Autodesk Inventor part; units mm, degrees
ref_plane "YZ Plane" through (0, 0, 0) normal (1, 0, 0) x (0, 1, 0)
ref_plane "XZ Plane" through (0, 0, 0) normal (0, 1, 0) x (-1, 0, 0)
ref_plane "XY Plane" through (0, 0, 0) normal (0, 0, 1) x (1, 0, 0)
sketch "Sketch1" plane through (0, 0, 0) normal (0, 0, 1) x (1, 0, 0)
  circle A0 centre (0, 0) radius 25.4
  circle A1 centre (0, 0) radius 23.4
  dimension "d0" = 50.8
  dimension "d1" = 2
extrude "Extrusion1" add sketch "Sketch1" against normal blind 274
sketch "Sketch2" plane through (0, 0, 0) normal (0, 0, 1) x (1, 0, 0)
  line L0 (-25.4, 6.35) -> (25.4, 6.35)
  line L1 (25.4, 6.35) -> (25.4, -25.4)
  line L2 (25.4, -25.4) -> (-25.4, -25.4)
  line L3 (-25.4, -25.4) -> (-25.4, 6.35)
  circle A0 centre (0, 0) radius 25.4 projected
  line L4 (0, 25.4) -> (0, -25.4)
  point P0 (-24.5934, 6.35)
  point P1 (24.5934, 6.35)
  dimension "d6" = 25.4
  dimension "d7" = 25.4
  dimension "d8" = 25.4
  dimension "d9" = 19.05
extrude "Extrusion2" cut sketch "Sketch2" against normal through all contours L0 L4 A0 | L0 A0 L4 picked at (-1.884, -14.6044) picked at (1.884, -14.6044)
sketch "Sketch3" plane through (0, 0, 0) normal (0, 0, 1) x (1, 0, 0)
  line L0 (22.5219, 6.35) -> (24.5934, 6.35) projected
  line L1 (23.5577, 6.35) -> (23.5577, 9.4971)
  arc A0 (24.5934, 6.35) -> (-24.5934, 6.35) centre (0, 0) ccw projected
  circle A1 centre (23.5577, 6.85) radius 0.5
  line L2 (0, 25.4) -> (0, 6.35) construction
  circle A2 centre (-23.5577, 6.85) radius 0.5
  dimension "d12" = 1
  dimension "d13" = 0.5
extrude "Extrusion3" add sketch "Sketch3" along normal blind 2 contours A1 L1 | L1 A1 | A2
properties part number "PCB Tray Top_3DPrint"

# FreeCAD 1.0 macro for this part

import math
import FreeCAD as App
import Part
import Sketcher

V = App.Vector
Q = App.Units.Quantity

doc = App.newDocument("Part")
body = doc.addObject("PartDesign::Body", "Body")

# Sketch on XY plane
sketch1 = body.newObject("Sketcher::SketchObject", "Sketch")
sketch1.AttachmentSupport = (doc.getObject("XY_Plane"), [""])
sketch1.MapMode = "FlatFace"
sketch1.addGeometry(Part.Circle(V(0, 0, 0), V(0, 0, 1), 25), False)
sketch1.addGeometry(Part.Circle(V(0, 0, 0), V(0, 0, 1), 23), False)
sketch1.addConstraint(Sketcher.Constraint("Coincident", 0, 3, -1, 1))
sketch1.addConstraint(Sketcher.Constraint("Coincident", 1, 3, -1, 1))
sketch1.addConstraint(Sketcher.Constraint("Diameter", 0, Q("50.8 mm")))
sketch1.addConstraint(Sketcher.Constraint("Diameter", 1, Q("46.8 mm")))
pad1 = body.newObject("PartDesign::Pad", "Pad")
pad1.Profile = sketch1
pad1.Length = 274
pad1.Reversed = True

# Sketch on XY plane
sketch2 = body.newObject("Sketcher::SketchObject", "Sketch001")
sketch2.AttachmentSupport = (doc.getObject("XY_Plane"), [""])
sketch2.MapMode = "FlatFace"
sketch2.addGeometry(Part.ArcOfCircle(Part.Circle(V(0, 0, 0), V(0, 0, 1), 25), math.radians(166), math.radians(374)), False)
sketch2.addGeometry(Part.LineSegment(V(25, 6, 0), V(-25, 6, 0)), False)
sketch2.addConstraint(Sketcher.Constraint("Coincident", 0, 1, 1, 2))
sketch2.addConstraint(Sketcher.Constraint("Coincident", 1, 1, 0, 2))
sketch2.addConstraint(Sketcher.Constraint("Horizontal", 1))
sketch2.addConstraint(Sketcher.Constraint("Coincident", 0, 3, -1, 1))
sketch2.addConstraint(Sketcher.Constraint("Radius", 0, Q("25.4 mm")))
sketch2.addConstraint(Sketcher.Constraint("DistanceX", 1, 2, 1, 1, Q("49.187 mm")))
pocket1 = body.newObject("PartDesign::Pocket", "Pocket")
pocket1.Profile = sketch2
pocket1.Type = "ThroughAll"

# Sketch on XY plane
sketch3 = body.newObject("Sketcher::SketchObject", "Sketch002")
sketch3.AttachmentSupport = (doc.getObject("XY_Plane"), [""])
sketch3.MapMode = "FlatFace"
sketch3.addGeometry(Part.Circle(V(23.6, 6.8, 0), V(0, 0, 1), 0.5), False)
sketch3.addGeometry(Part.Circle(V(-23.6, 6.8, 0), V(0, 0, 1), 0.5), False)
sketch3.addConstraint(Sketcher.Constraint("Equal", 0, 1))
sketch3.addConstraint(Sketcher.Constraint("Symmetric", 0, 3, 1, 3, -2))
sketch3.addConstraint(Sketcher.Constraint("Diameter", 0, Q("1 mm")))
sketch3.addConstraint(Sketcher.Constraint("DistanceY", -1, 1, 0, 3, Q("6.85 mm")))
sketch3.addConstraint(Sketcher.Constraint("DistanceX", -1, 1, 0, 3, Q("23.5577 mm")))
pad2 = body.newObject("PartDesign::Pad", "Pad001")
pad2.Profile = sketch3
pad2.Length = 2

doc.recompute()
